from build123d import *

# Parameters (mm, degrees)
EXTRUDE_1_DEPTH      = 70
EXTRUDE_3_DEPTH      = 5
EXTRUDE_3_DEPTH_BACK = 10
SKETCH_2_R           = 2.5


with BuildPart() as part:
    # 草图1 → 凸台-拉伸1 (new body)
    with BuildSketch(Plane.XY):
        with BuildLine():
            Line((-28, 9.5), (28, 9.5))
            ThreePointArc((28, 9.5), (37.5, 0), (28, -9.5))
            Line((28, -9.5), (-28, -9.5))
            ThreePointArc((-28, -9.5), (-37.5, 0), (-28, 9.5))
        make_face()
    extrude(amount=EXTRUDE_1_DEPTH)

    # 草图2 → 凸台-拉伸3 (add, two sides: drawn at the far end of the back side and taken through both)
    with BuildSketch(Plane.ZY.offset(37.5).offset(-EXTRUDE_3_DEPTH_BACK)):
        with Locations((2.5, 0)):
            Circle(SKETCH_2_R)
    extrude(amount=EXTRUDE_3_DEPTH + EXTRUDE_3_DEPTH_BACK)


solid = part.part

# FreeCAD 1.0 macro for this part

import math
import FreeCAD as App
import Part
import Sketcher
from FreeCAD import Vector
Q = App.Units.Quantity

doc = App.newDocument("Part")
params = doc.addObject("Spreadsheet::Sheet", "Params")
for row, (alias, value) in enumerate([
    ("sketch1_radius", "9.5 mm"),
    ("sketch1_width", "56 mm"),
    ("pad1_length", "70 mm"),
    ("sketch2_diameter", "5 mm"),
    ("pad2_length", "5 mm"),
    ("pad2_length2", "10 mm"),
], start=1):
    params.set(f"A{row}", alias)
    params.set(f"B{row}", "=" + value)
    params.setAlias(f"B{row}", alias)

body = doc.addObject("PartDesign::Body", "Body")

sketch1 = body.newObject("Sketcher::SketchObject", "Sketch")
sketch1.AttachmentSupport = (doc.getObject("XY_Plane"), [""])
sketch1.MapMode = "FlatFace"
sketch1.addGeometry([
    Part.LineSegment(Vector(28, 9.5, 0), Vector(-28, 9.5, 0)),
    Part.ArcOfCircle(Part.Circle(Vector(-28, 0, 0), Vector(0, 0, 1), 9.5), math.radians(90), math.radians(270)),
    Part.LineSegment(Vector(-28, -9.5, 0), Vector(28, -9.5, 0)),
    Part.ArcOfCircle(Part.Circle(Vector(28, 0, 0), Vector(0, 0, 1), 9.5), math.radians(-90), math.radians(90)),
], False)
sketch1.addConstraint([
    Sketcher.Constraint("Tangent", 0, 2, 1, 1),
    Sketcher.Constraint("Tangent", 1, 2, 2, 1),
    Sketcher.Constraint("Tangent", 2, 2, 3, 1),
    Sketcher.Constraint("Tangent", 3, 2, 0, 1),
    Sketcher.Constraint("Horizontal", 0),
    Sketcher.Constraint("Horizontal", 2),
    Sketcher.Constraint("Symmetric", 1, 3, 3, 3, -1, 1),
    Sketcher.Constraint("Radius", 1, Q("9.5 mm")),
    Sketcher.Constraint("DistanceX", 0, 2, 0, 1, Q("56 mm")),
])
sketch1.setExpression("Constraints[7]", "Params.sketch1_radius")
sketch1.setExpression("Constraints[8]", "Params.sketch1_width")
pad1 = body.newObject("PartDesign::Pad", "Pad")
pad1.Profile = sketch1
pad1.setExpression("Length", "Params.pad1_length")

sketch2 = body.newObject("Sketcher::SketchObject", "Sketch001")
sketch2.AttachmentSupport = (doc.getObject("YZ_Plane"), [""])
sketch2.MapMode = "FlatFace"
sketch2.AttachmentOffset = App.Placement(Vector(0, 0, -37.5), App.Rotation())
sketch2.addGeometry(Part.Circle(Vector(0, 2.5, 0), Vector(0, 0, 1), 2.5), False)
sketch2.addConstraint([
    Sketcher.Constraint("PointOnObject", 0, 3, -2),
    Sketcher.Constraint("Diameter", 0, Q("5 mm")),
    Sketcher.Constraint("DistanceY", -1, 1, 0, 3, Q("2.5 mm")),
])
sketch2.setExpression("Constraints[1]", "Params.sketch2_diameter")
pad2 = body.newObject("PartDesign::Pad", "Pad001")
pad2.Profile = sketch2
pad2.Type = "TwoLengths"
pad2.setExpression("Length", "Params.pad2_length")
pad2.setExpression("Length2", "Params.pad2_length2")
pad2.Reversed = True

doc.recompute()
